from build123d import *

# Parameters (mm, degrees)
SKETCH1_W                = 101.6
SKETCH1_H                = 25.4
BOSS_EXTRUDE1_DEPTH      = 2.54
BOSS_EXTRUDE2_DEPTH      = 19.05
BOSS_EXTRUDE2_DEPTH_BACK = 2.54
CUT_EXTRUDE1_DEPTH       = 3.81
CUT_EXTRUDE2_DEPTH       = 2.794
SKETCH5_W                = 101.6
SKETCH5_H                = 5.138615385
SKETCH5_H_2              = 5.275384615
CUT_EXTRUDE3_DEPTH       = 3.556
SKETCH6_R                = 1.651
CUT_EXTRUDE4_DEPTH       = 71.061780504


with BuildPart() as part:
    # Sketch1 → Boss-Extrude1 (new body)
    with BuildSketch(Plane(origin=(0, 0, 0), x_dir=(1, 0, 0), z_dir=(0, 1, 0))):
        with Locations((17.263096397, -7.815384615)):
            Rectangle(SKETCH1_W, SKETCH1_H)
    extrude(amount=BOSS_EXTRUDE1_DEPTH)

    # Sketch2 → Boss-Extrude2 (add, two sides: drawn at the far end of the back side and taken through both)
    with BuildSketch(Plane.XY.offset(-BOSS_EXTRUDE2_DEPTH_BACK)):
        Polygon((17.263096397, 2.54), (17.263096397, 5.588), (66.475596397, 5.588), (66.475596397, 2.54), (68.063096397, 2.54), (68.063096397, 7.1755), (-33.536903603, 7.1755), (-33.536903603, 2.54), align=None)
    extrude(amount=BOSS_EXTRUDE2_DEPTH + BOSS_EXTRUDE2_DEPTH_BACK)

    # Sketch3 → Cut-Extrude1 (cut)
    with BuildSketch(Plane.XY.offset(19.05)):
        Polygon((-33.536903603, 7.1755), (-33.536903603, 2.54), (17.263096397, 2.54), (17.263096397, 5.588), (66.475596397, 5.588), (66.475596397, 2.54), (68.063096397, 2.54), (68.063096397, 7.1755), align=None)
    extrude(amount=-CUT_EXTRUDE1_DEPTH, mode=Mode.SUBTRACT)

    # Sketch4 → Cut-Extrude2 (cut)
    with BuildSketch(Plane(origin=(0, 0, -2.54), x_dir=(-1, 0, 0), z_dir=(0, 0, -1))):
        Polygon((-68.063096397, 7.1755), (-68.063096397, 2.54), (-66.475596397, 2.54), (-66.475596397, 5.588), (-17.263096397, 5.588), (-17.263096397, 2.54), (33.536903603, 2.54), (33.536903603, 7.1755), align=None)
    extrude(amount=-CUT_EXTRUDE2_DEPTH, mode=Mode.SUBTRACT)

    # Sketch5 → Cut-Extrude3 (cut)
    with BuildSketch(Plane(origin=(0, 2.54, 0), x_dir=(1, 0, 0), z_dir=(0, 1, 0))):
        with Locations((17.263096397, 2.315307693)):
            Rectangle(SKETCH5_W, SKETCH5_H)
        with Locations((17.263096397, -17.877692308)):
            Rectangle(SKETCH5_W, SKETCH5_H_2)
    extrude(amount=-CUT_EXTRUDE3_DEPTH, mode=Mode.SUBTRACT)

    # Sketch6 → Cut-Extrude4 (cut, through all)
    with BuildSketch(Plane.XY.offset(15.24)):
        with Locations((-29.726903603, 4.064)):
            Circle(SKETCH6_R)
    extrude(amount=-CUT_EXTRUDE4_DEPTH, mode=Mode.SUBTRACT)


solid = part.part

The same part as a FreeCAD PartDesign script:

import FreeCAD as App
import Part
import Sketcher
Q = App.Units.Quantity


def add_polygon(sketch, points):
    """Adds a closed chain of lines whose ends are joined by coincident constraints."""
    first, n = sketch.GeometryCount, len(points)
    for a, b in zip(points, points[1:] + points[:1]):
        sketch.addGeometry(Part.LineSegment(App.Vector(*a, 0), App.Vector(*b, 0)), False)
    for i in range(n):
        sketch.addConstraint(Sketcher.Constraint("Coincident", first + i, 2, first + (i + 1) % n, 1))

doc = App.newDocument("Part")
body = doc.addObject("PartDesign::Body", "Body")

sketch1 = doc.addObject("Sketcher::SketchObject", "Sketch")
body.addObject(sketch1)
sketch1.AttachmentSupport = (doc.XZ_Plane, [""])
sketch1.MapMode = "FlatFace"
add_polygon(sketch1, [(-33.536904, -4.884615), (-33.536904, 20.515385), (68.063096, 20.515385), (68.063096, -4.884615)])
sketch1.addConstraint(Sketcher.Constraint("Vertical", 0))
sketch1.addConstraint(Sketcher.Constraint("Horizontal", 1))
sketch1.addConstraint(Sketcher.Constraint("Vertical", 2))
sketch1.addConstraint(Sketcher.Constraint("Horizontal", 3))
sketch1.addConstraint(Sketcher.Constraint("DistanceX", 1, 1, 1, 2, Q("4 in")))
sketch1.addConstraint(Sketcher.Constraint("DistanceY", 0, 1, 0, 2, Q("1 in")))
sketch1.addConstraint(Sketcher.Constraint("DistanceX", 0, 2, -1, 1, Q("33.536904 mm")))
sketch1.addConstraint(Sketcher.Constraint("DistanceY", -1, 1, 0, 2, Q("20.515385 mm")))
pad1 = doc.addObject("PartDesign::Pad", "Pad")
body.addObject(pad1)
pad1.Profile = sketch1
pad1.Length = Q("0.1 in")
pad1.Reversed = True

sketch2 = doc.addObject("Sketcher::SketchObject", "Sketch001")
body.addObject(sketch2)
sketch2.AttachmentSupport = (doc.XY_Plane, [""])
sketch2.MapMode = "FlatFace"
add_polygon(sketch2, [(17.263096, 2.54), (17.263096, 5.588), (66.475596, 5.588), (66.475596, 2.54), (68.063096, 2.54), (68.063096, 7.1755), (-33.536904, 7.1755), (-33.536904, 2.54)])
sketch2.addConstraint(Sketcher.Constraint("Vertical", 0))
sketch2.addConstraint(Sketcher.Constraint("Horizontal", 1))
sketch2.addConstraint(Sketcher.Constraint("Vertical", 2))
sketch2.addConstraint(Sketcher.Constraint("Horizontal", 3))
sketch2.addConstraint(Sketcher.Constraint("Vertical", 4))
sketch2.addConstraint(Sketcher.Constraint("Horizontal", 5))
sketch2.addConstraint(Sketcher.Constraint("Vertical", 6))
sketch2.addConstraint(Sketcher.Constraint("Horizontal", 7))
sketch2.addConstraint(Sketcher.Constraint("Horizontal", 3, 2, 6, 2))
sketch2.addConstraint(Sketcher.Constraint("DistanceX", 5, 2, 5, 1, Q("4 in")))
sketch2.addConstraint(Sketcher.Constraint("DistanceX", 7, 1, 7, 2, Q("2 in")))
sketch2.addConstraint(Sketcher.Constraint("DistanceY", 0, 1, 0, 2, Q("0.12 in")))
sketch2.addConstraint(Sketcher.Constraint("DistanceY", -1, 1, 2, 2, Q("0.1 in")))
sketch2.addConstraint(Sketcher.Constraint("DistanceX", 1, 1, 1, 2, Q("1.9375 in")))
sketch2.addConstraint(Sketcher.Constraint("DistanceY", 4, 1, 4, 2, Q("0.1825 in")))
sketch2.addConstraint(Sketcher.Constraint("DistanceX", -1, 1, 0, 2, Q("17.263096 mm")))
pad2 = doc.addObject("PartDesign::Pad", "Pad001")
body.addObject(pad2)
pad2.Profile = sketch2
pad2.Type = "TwoLengths"
pad2.Length = Q("0.75 in")
pad2.Length2 = Q("0.1 in")

sketch3 = doc.addObject("Sketcher::SketchObject", "Sketch002")
body.addObject(sketch3)
sketch3.AttachmentSupport = (doc.XY_Plane, [""])
sketch3.MapMode = "FlatFace"
sketch3.AttachmentOffset = App.Placement(App.Vector(0, 0, 0.75 * 25.4), App.Rotation())
add_polygon(sketch3, [(-33.536904, 7.1755), (-33.536904, 2.54), (17.263096, 2.54), (17.263096, 5.588), (66.475596, 5.588), (66.475596, 2.54), (68.063096, 2.54), (68.063096, 7.1755)])
sketch3.addConstraint(Sketcher.Constraint("Vertical", 0))
sketch3.addConstraint(Sketcher.Constraint("Horizontal", 1))
sketch3.addConstraint(Sketcher.Constraint("Vertical", 2))
sketch3.addConstraint(Sketcher.Constraint("Horizontal", 3))
sketch3.addConstraint(Sketcher.Constraint("Vertical", 4))
sketch3.addConstraint(Sketcher.Constraint("Horizontal", 5))
sketch3.addConstraint(Sketcher.Constraint("Vertical", 6))
sketch3.addConstraint(Sketcher.Constraint("Horizontal", 7))
sketch3.addConstraint(Sketcher.Constraint("Horizontal", 1, 2, 4, 2))
sketch3.addConstraint(Sketcher.Constraint("DistanceX", 1, 1, 1, 2, Q("2 in")))
sketch3.addConstraint(Sketcher.Constraint("DistanceX", 7, 2, 7, 1, Q("4 in")))
sketch3.addConstraint(Sketcher.Constraint("DistanceY", 2, 1, 2, 2, Q("0.12 in")))
sketch3.addConstraint(Sketcher.Constraint("DistanceY", -1, 1, 0, 2, Q("0.1 in")))
sketch3.addConstraint(Sketcher.Constraint("DistanceX", 3, 1, 3, 2, Q("1.9375 in")))
sketch3.addConstraint(Sketcher.Constraint("DistanceY", 0, 2, 0, 1, Q("0.1825 in")))
sketch3.addConstraint(Sketcher.Constraint("DistanceX", 0, 2, -1, 1, Q("33.536904 mm")))
pocket1 = doc.addObject("PartDesign::Pocket", "Pocket")
body.addObject(pocket1)
pocket1.Profile = sketch3
pocket1.Length = Q("0.15 in")

sketch4 = doc.addObject("Sketcher::SketchObject", "Sketch003")
body.addObject(sketch4)
sketch4.AttachmentSupport = (doc.XY_Plane, [""])
sketch4.MapMode = "FlatFace"
sketch4.AttachmentOffset = App.Placement(App.Vector(0, 0, -0.1 * 25.4), App.Rotation())
add_polygon(sketch4, [(68.063096, 7.1755), (68.063096, 2.54), (66.475596, 2.54), (66.475596, 5.588), (17.263096, 5.588), (17.263096, 2.54), (-33.536904, 2.54), (-33.536904, 7.1755)])
sketch4.addConstraint(Sketcher.Constraint("Vertical", 0))
sketch4.addConstraint(Sketcher.Constraint("Horizontal", 1))
sketch4.addConstraint(Sketcher.Constraint("Vertical", 2))
sketch4.addConstraint(Sketcher.Constraint("Horizontal", 3))
sketch4.addConstraint(Sketcher.Constraint("Vertical", 4))
sketch4.addConstraint(Sketcher.Constraint("Horizontal", 5))
sketch4.addConstraint(Sketcher.Constraint("Vertical", 6))
sketch4.addConstraint(Sketcher.Constraint("Horizontal", 7))
sketch4.addConstraint(Sketcher.Constraint("Horizontal", 1, 2, 4, 2))
sketch4.addConstraint(Sketcher.Constraint("DistanceX", 5, 2, 5, 1, Q("2 in")))
sketch4.addConstraint(Sketcher.Constraint("DistanceX", 7, 1, 7, 2, Q("4 in")))
sketch4.addConstraint(Sketcher.Constraint("DistanceY", 2, 1, 2, 2, Q("0.12 in")))
sketch4.addConstraint(Sketcher.Constraint("DistanceY", -1, 1, 0, 2, Q("0.1 in")))
sketch4.addConstraint(Sketcher.Constraint("DistanceX", 1, 2, 1, 1, Q("0.0625 in")))
sketch4.addConstraint(Sketcher.Constraint("DistanceY", 0, 2, 0, 1, Q("0.1825 in")))
sketch4.addConstraint(Sketcher.Constraint("DistanceX", -1, 1, 0, 2, Q("68.063096 mm")))
pocket2 = doc.addObject("PartDesign::Pocket", "Pocket001")
body.addObject(pocket2)
pocket2.Profile = sketch4
pocket2.Length = Q("0.11 in")
pocket2.Reversed = True

sketch5 = doc.addObject("Sketcher::SketchObject", "Sketch004")
body.addObject(sketch5)
sketch5.AttachmentSupport = (doc.XZ_Plane, [""])
sketch5.MapMode = "FlatFace"
sketch5.AttachmentOffset = App.Placement(App.Vector(0, 0, -0.1 * 25.4), App.Rotation())
add_polygon(sketch5, [(-33.536904, -4.884615), (-33.536904, 0.254), (68.063096, 0.254), (68.063096, -4.884615)])
add_polygon(sketch5, [(-33.536904, 15.24), (-33.536904, 20.515385), (68.063096, 20.515385), (68.063096, 15.24)])
sketch5.addConstraint(Sketcher.Constraint("Vertical", 0))
sketch5.addConstraint(Sketcher.Constraint("Horizontal", 1))
sketch5.addConstraint(Sketcher.Constraint("Vertical", 2))
sketch5.addConstraint(Sketcher.Constraint("Horizontal", 3))
sketch5.addConstraint(Sketcher.Constraint("Vertical", 4))
sketch5.addConstraint(Sketcher.Constraint("Horizontal", 5))
sketch5.addConstraint(Sketcher.Constraint("Vertical", 6))
sketch5.addConstraint(Sketcher.Constraint("Horizontal", 7))
sketch5.addConstraint(Sketcher.Constraint("Vertical", 3, 2, 4, 2))
sketch5.addConstraint(Sketcher.Constraint("Vertical", 2, 2, 5, 2))
sketch5.addConstraint(Sketcher.Constraint("DistanceX", 1, 1, 1, 2, Q("4 in")))
sketch5.addConstraint(Sketcher.Constraint("DistanceY", 3, 2, 4, 2, Q("1 in")))
sketch5.addConstraint(Sketcher.Constraint("DistanceY", -1, 1, 6, 2, Q("0.6 in")))
sketch5.addConstraint(Sketcher.Constraint("DistanceY", -1, 1, 0, 2, Q("0.01 in")))
sketch5.addConstraint(Sketcher.Constraint("DistanceY", 0, 1, 0, 2, Q("5.138615 mm")))
sketch5.addConstraint(Sketcher.Constraint("DistanceX", 0, 2, -1, 1, Q("33.536904 mm")))
pocket3 = doc.addObject("PartDesign::Pocket", "Pocket002")
body.addObject(pocket3)
pocket3.Profile = sketch5
pocket3.Length = Q("0.14 in")
pocket3.Reversed = True

sketch6 = doc.addObject("Sketcher::SketchObject", "Sketch005")
body.addObject(sketch6)
sketch6.AttachmentSupport = (doc.XY_Plane, [""])
sketch6.MapMode = "FlatFace"
sketch6.AttachmentOffset = App.Placement(App.Vector(0, 0, 0.6 * 25.4), App.Rotation())
sketch6.addGeometry(Part.Circle(App.Vector(-29.726904, 4.064, 0), App.Vector(0, 0, 1), 1.651), False)
sketch6.addConstraint(Sketcher.Constraint("Diameter", 0, Q("0.13 in")))
sketch6.addConstraint(Sketcher.Constraint("DistanceY", -1, 1, 0, 3, Q("0.16 in")))
sketch6.addConstraint(Sketcher.Constraint("DistanceX", 0, 3, -1, 1, Q("29.726904 mm")))
pocket4 = doc.addObject("PartDesign::Pocket", "Pocket003")
body.addObject(pocket4)
pocket4.Profile = sketch6
pocket4.Type = "ThroughAll"

doc.recompute()
